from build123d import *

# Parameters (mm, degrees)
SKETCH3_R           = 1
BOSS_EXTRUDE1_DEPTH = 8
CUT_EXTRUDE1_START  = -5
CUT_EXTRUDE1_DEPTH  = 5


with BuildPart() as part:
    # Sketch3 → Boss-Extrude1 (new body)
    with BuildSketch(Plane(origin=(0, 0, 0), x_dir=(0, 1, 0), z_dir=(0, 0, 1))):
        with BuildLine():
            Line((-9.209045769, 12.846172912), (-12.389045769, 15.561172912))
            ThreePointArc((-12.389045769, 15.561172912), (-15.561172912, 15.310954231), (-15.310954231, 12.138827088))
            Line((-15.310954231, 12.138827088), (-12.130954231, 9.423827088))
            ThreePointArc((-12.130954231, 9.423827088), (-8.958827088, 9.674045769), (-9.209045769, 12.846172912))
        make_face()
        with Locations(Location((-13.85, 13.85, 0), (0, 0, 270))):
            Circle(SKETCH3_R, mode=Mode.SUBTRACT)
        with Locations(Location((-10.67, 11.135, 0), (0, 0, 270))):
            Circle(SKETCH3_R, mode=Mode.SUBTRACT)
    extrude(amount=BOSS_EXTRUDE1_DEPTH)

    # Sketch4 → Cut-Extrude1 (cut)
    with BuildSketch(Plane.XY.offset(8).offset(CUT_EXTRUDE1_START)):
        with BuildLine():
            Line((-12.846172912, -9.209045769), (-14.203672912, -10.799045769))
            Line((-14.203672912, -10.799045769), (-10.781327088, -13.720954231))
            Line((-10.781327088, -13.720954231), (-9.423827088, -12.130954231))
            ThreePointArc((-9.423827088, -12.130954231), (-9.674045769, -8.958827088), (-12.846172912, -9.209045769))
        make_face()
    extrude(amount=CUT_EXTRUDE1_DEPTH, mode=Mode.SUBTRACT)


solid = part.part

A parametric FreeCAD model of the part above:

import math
import FreeCAD as App
import Part
import Sketcher

V = App.Vector

doc = App.newDocument("Part")
body = doc.addObject("PartDesign::Body", "Body")

sketch1 = body.newObject("Sketcher::SketchObject", "Sketch")
sketch1.AttachmentSupport = (doc.getObject("XY_Plane"), [""])
sketch1.MapMode = "FlatFace"
sketch1.addGeometry([
    Part.LineSegment(V(-12.846173, -9.209046, 0), V(-15.561173, -12.389046, 0)),
    Part.ArcOfCircle(Part.Circle(V(-13.85, -13.85, 0), V(0, 0, 1), 2.25), math.radians(139.510176), math.radians(319.510176)),
    Part.LineSegment(V(-12.138827, -15.310954, 0), V(-9.423827, -12.130954, 0)),
    Part.ArcOfCircle(Part.Circle(V(-11.135, -10.67, 0), V(0, 0, 1), 2.25), math.radians(-40.489824), math.radians(139.510176)),
    Part.Circle(V(-11.135, -10.67, 0), V(0, 0, 1), 1),
    Part.Circle(V(-13.85, -13.85, 0), V(0, 0, 1), 1),
], False)
sketch1.addConstraint([
    Sketcher.Constraint("Tangent", 0, 2, 1, 1),
    Sketcher.Constraint("Tangent", 1, 2, 2, 1),
    Sketcher.Constraint("Tangent", 2, 2, 3, 1),
    Sketcher.Constraint("Tangent", 3, 2, 0, 1),
    Sketcher.Constraint("Coincident", 4, 3, 3, 3),
    Sketcher.Constraint("Coincident", 5, 3, 1, 3),
    Sketcher.Constraint("Equal", 1, 3),
    Sketcher.Constraint("Equal", 4, 5),
    Sketcher.Constraint("Diameter", 4, 2.0),
    Sketcher.Constraint("Radius", 1, 2.25),
    Sketcher.Constraint("DistanceX", 1, 3, -1, 1, 13.85),
    Sketcher.Constraint("DistanceY", 1, 3, -1, 1, 13.85),
    Sketcher.Constraint("DistanceY", 3, 3, -1, 1, 10.67),
    Sketcher.Constraint("DistanceX", 3, 3, -1, 1, 11.135),
])
pad1 = body.newObject("PartDesign::Pad", "Pad")
pad1.Profile = sketch1
pad1.Length = 8

sketch2 = body.newObject("Sketcher::SketchObject", "Sketch001")
sketch2.AttachmentSupport = (doc.getObject("XY_Plane"), [""])
sketch2.MapMode = "FlatFace"
sketch2.AttachmentOffset = App.Placement(V(0, 0, 3), App.Rotation())
sketch2.addGeometry([
    Part.LineSegment(V(-12.846173, -9.209046, 0), V(-14.203673, -10.799046, 0)),
    Part.LineSegment(V(-14.203673, -10.799046, 0), V(-10.781327, -13.720954, 0)),
    Part.LineSegment(V(-10.781327, -13.720954, 0), V(-9.423827, -12.130954, 0)),
    Part.ArcOfCircle(Part.Circle(V(-11.135, -10.67, 0), V(0, 0, 1), 2.25), math.radians(-40.489824), math.radians(139.510176)),
], False)
sketch2.addConstraint([
    Sketcher.Constraint("Coincident", 0, 2, 1, 1),
    Sketcher.Constraint("Coincident", 1, 2, 2, 1),
    Sketcher.Constraint("Tangent", 2, 2, 3, 1),
    Sketcher.Constraint("Tangent", 3, 2, 0, 1),
    Sketcher.Constraint("Perpendicular", 0, 1),
    Sketcher.Constraint("Perpendicular", 1, 2),
    Sketcher.Constraint("Radius", 3, 2.25),
    Sketcher.Constraint("DistanceY", 3, 3, -1, 1, 10.67),
    Sketcher.Constraint("DistanceY", 1, 2, 2, 2, 1.59),
    Sketcher.Constraint("DistanceX", 3, 3, -1, 1, 11.135),
    Sketcher.Constraint("DistanceX", 1, 2, 2, 2, 1.3575),
])
pocket1 = body.newObject("PartDesign::Pocket", "Pocket")
pocket1.Profile = sketch2
pocket1.Length = 5
pocket1.Reversed = True

doc.recompute()
